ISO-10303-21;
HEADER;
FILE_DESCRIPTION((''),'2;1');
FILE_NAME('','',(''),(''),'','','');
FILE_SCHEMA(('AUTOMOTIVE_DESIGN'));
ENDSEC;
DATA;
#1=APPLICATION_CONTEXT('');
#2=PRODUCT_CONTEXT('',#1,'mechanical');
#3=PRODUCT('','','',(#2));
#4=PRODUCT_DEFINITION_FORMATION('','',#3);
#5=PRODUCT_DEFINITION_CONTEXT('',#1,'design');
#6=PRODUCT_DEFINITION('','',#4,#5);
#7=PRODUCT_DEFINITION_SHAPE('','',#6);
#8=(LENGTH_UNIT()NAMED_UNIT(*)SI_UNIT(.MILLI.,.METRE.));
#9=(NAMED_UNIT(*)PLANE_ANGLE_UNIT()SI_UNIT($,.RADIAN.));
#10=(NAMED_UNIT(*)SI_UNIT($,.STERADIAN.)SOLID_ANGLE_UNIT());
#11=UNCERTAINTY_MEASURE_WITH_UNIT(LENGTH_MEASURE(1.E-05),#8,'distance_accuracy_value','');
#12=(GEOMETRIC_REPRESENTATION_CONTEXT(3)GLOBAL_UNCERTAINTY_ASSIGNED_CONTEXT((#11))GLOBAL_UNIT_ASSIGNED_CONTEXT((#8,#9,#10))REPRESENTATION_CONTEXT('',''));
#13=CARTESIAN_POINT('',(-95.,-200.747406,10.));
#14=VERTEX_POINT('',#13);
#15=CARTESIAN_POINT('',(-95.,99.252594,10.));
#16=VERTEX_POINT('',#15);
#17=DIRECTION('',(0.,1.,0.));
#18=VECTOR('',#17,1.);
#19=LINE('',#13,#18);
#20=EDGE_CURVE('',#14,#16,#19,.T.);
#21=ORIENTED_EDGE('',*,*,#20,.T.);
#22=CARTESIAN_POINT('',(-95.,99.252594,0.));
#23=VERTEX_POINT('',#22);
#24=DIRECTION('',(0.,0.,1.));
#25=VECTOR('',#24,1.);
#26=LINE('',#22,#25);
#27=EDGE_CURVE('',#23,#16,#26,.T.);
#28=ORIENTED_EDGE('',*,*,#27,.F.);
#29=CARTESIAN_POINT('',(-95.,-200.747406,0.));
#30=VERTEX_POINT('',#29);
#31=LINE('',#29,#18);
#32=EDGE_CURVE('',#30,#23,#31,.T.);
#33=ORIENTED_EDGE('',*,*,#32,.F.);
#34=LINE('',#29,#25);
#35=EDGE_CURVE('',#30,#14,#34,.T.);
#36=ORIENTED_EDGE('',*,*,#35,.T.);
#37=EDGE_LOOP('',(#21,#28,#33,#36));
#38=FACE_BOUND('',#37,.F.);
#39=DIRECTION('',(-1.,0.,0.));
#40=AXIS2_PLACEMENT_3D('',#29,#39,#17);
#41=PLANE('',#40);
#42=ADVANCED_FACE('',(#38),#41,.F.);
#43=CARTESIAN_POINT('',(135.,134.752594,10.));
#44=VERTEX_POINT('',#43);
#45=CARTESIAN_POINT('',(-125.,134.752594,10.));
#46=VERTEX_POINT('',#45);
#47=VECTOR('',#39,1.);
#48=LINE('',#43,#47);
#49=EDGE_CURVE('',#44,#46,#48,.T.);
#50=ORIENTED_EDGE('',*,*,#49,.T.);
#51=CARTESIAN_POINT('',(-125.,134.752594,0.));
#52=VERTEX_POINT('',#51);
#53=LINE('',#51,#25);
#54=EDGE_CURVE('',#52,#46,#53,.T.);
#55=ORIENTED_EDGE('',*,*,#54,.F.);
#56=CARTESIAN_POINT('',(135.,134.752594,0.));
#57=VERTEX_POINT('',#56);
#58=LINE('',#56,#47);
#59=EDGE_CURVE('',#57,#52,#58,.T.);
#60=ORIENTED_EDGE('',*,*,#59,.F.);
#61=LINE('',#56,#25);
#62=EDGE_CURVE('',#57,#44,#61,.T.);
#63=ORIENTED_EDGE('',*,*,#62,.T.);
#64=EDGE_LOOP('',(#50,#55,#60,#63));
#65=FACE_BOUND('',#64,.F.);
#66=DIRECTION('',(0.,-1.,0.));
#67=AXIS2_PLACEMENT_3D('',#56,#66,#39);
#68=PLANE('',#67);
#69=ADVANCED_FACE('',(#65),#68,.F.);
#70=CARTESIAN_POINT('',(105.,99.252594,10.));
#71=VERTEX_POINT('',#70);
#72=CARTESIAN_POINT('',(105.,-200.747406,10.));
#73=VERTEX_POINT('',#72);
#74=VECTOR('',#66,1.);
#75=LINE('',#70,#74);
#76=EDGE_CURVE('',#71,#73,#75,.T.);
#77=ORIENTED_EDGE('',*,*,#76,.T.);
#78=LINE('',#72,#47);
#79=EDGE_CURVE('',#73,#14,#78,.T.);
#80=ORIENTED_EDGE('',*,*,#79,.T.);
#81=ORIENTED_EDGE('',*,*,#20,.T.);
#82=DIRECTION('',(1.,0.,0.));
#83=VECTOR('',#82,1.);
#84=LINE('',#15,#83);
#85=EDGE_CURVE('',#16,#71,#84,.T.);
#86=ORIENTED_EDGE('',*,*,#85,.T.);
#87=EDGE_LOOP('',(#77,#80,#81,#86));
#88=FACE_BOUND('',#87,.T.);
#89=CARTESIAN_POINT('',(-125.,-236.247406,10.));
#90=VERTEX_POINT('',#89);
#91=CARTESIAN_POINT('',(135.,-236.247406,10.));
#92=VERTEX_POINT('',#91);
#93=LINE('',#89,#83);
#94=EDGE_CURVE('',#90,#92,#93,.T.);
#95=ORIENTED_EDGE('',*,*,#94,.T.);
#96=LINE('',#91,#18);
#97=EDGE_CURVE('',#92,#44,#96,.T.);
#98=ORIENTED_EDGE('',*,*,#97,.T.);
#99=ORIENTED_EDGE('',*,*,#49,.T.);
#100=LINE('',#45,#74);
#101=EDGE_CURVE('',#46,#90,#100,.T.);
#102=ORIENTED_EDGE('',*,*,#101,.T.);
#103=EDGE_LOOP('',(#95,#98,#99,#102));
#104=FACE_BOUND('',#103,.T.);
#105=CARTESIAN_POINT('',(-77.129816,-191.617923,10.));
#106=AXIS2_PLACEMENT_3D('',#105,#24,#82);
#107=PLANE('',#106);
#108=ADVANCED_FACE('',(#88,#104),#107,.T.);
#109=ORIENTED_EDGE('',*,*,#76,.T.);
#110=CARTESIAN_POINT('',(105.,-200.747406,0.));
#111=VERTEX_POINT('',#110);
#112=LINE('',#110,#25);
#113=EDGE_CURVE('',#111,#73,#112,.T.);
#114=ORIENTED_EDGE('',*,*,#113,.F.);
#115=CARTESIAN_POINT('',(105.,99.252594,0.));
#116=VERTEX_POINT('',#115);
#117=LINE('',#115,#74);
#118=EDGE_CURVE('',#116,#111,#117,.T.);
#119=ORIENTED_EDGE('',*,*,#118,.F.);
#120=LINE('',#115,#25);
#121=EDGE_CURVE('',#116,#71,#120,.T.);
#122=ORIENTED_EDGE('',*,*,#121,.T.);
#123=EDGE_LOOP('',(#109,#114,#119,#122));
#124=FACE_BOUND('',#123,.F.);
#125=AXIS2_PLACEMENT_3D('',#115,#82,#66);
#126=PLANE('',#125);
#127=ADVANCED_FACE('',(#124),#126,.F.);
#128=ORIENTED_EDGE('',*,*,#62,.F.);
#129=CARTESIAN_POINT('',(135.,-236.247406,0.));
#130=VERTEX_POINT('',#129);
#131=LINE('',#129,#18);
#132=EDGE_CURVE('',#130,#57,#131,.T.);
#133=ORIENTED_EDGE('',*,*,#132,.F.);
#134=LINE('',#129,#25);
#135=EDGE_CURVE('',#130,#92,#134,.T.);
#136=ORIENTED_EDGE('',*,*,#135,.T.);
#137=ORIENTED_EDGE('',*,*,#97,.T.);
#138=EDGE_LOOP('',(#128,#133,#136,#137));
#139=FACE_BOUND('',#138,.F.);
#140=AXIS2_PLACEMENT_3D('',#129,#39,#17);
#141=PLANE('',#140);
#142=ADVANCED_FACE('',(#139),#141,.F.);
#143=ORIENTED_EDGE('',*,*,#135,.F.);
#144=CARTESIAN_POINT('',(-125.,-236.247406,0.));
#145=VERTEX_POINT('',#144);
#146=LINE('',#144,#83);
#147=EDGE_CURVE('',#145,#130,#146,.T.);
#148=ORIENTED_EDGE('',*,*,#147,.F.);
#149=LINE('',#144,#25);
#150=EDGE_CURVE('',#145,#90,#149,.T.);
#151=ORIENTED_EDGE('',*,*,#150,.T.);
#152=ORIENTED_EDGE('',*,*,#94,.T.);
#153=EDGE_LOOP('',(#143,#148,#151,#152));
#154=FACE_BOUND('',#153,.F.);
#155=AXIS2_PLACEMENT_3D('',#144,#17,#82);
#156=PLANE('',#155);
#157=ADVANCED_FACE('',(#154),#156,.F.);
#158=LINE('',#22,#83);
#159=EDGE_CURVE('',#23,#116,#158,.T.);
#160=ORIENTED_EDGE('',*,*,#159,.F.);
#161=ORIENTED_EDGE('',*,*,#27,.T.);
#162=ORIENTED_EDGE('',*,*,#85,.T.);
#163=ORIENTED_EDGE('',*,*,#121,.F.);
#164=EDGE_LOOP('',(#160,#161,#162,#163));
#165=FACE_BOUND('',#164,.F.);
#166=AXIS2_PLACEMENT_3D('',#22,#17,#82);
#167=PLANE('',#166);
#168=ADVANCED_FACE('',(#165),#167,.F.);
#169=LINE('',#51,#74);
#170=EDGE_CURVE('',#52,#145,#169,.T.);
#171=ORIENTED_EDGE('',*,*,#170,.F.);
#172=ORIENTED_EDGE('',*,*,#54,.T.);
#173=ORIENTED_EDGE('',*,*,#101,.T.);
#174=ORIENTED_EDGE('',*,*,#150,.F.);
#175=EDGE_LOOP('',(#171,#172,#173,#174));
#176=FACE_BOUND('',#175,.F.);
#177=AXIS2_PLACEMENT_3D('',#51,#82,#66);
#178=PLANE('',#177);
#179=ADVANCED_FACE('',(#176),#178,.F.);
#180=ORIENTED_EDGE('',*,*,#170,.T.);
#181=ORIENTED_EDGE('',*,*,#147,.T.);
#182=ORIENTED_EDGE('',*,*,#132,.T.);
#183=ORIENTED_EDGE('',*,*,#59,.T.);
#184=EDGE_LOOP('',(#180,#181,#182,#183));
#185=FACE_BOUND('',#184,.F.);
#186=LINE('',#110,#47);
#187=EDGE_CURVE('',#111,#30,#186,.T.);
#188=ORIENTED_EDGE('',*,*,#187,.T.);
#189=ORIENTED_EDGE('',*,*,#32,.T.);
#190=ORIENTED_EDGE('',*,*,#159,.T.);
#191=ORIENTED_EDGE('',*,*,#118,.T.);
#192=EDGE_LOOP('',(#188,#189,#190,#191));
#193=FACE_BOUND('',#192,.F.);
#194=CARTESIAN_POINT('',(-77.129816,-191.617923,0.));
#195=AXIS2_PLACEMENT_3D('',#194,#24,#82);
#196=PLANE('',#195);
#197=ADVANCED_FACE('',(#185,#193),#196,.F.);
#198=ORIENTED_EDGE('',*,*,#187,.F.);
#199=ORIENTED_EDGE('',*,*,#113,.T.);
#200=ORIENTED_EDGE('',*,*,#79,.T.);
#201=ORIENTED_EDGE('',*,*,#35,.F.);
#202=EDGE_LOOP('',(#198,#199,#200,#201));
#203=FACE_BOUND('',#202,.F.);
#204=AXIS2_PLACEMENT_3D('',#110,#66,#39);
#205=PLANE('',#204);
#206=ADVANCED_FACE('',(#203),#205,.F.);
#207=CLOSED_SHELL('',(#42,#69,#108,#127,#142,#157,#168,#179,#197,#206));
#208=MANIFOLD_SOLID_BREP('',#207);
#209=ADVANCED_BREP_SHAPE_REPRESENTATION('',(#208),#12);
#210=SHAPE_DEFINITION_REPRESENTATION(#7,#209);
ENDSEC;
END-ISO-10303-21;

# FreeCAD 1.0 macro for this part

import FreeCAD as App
import Part
import Sketcher
from FreeCAD import Vector

doc = App.newDocument("Part")
body = doc.addObject("PartDesign::Body", "Body")

# Sketch on XY plane
sketch1 = body.newObject("Sketcher::SketchObject", "Sketch")
sketch1.AttachmentSupport = (doc.getObject("XY_Plane"), [""])
sketch1.MapMode = "FlatFace"
sketch1.addGeometry(Part.LineSegment(Vector(-125, -236.247406, 0), Vector(135, -236.247406, 0)), False)
sketch1.addGeometry(Part.LineSegment(Vector(135, -236.247406, 0), Vector(135, 134.752594, 0)), False)
sketch1.addGeometry(Part.LineSegment(Vector(135, 134.752594, 0), Vector(-125, 134.752594, 0)), False)
sketch1.addGeometry(Part.LineSegment(Vector(-125, 134.752594, 0), Vector(-125, -236.247406, 0)), False)
sketch1.addGeometry(Part.LineSegment(Vector(105, -200.747406, 0), Vector(-95, -200.747406, 0)), False)
sketch1.addGeometry(Part.LineSegment(Vector(-95, -200.747406, 0), Vector(-95, 99.252594, 0)), False)
sketch1.addGeometry(Part.LineSegment(Vector(-95, 99.252594, 0), Vector(105, 99.252594, 0)), False)
sketch1.addGeometry(Part.LineSegment(Vector(105, 99.252594, 0), Vector(105, -200.747406, 0)), False)
sketch1.addConstraint(Sketcher.Constraint("Coincident", 0, 2, 1, 1))
sketch1.addConstraint(Sketcher.Constraint("Coincident", 1, 2, 2, 1))
sketch1.addConstraint(Sketcher.Constraint("Coincident", 2, 2, 3, 1))
sketch1.addConstraint(Sketcher.Constraint("Coincident", 3, 2, 0, 1))
sketch1.addConstraint(Sketcher.Constraint("Coincident", 4, 2, 5, 1))
sketch1.addConstraint(Sketcher.Constraint("Coincident", 5, 2, 6, 1))
sketch1.addConstraint(Sketcher.Constraint("Coincident", 6, 2, 7, 1))
sketch1.addConstraint(Sketcher.Constraint("Coincident", 7, 2, 4, 1))
sketch1.addConstraint(Sketcher.Constraint("Horizontal", 0))
sketch1.addConstraint(Sketcher.Constraint("Vertical", 1))
sketch1.addConstraint(Sketcher.Constraint("Horizontal", 2))
sketch1.addConstraint(Sketcher.Constraint("Vertical", 3))
sketch1.addConstraint(Sketcher.Constraint("Horizontal", 4))
sketch1.addConstraint(Sketcher.Constraint("Vertical", 5))
sketch1.addConstraint(Sketcher.Constraint("Horizontal", 6))
sketch1.addConstraint(Sketcher.Constraint("Vertical", 7))
sketch1.addConstraint(Sketcher.Constraint("DistanceX", 0, 1, 0, 2, 260.0))
sketch1.addConstraint(Sketcher.Constraint("DistanceX", 4, 2, 4, 1, 200.0))
sketch1.addConstraint(Sketcher.Constraint("DistanceY", 1, 1, 1, 2, 371.0))
sketch1.addConstraint(Sketcher.Constraint("DistanceY", 5, 1, 5, 2, 300.0))
sketch1.addConstraint(Sketcher.Constraint("DistanceX", -1, 1, 0, 2, 135.0))
sketch1.addConstraint(Sketcher.Constraint("DistanceX", 4, 2, -1, 1, 95.0))
sketch1.addConstraint(Sketcher.Constraint("DistanceY", 3, 2, 4, 2, 35.5))
sketch1.addConstraint(Sketcher.Constraint("DistanceY", 0, 2, -1, 1, 236.247406))
pad1 = body.newObject("PartDesign::Pad", "Pad")
pad1.Profile = sketch1
pad1.Length = 10

doc.recompute()
